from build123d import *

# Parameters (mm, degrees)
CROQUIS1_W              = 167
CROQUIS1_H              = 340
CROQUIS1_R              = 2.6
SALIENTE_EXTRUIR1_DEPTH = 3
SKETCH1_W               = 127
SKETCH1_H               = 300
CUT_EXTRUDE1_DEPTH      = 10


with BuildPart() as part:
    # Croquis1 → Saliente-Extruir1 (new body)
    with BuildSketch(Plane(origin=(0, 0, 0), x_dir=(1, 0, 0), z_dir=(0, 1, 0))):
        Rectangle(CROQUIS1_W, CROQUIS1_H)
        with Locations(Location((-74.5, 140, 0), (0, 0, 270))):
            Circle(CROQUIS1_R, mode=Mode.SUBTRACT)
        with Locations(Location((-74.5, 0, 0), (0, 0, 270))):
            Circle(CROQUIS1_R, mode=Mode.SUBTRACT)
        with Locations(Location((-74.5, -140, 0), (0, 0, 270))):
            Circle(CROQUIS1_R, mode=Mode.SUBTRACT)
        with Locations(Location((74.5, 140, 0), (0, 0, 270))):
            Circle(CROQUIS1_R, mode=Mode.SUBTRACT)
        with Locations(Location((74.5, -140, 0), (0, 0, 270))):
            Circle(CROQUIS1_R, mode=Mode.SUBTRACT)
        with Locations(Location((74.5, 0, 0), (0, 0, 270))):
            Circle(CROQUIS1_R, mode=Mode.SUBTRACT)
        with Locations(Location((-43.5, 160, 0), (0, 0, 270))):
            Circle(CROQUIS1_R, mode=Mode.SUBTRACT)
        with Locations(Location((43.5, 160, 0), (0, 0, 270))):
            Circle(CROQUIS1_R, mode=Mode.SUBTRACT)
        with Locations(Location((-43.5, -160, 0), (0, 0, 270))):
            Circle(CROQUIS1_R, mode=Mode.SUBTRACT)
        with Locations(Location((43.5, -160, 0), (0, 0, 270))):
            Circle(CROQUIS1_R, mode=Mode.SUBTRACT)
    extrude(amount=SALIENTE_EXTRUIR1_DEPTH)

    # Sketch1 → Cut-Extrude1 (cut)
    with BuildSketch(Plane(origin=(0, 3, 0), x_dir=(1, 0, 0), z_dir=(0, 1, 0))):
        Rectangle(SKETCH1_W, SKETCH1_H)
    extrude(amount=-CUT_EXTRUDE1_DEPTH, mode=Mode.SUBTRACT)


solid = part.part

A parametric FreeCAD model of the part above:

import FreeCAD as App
import Part
import Sketcher
from FreeCAD import Vector


def add_polygon(sketch, points):
    """Adds a closed chain of lines whose ends are joined by coincident constraints."""
    first, n = sketch.GeometryCount, len(points)
    for a, b in zip(points, points[1:] + points[:1]):
        sketch.addGeometry(Part.LineSegment(App.Vector(*a, 0), App.Vector(*b, 0)), False)
    for i in range(n):
        sketch.addConstraint(Sketcher.Constraint("Coincident", first + i, 2, first + (i + 1) % n, 1))

doc = App.newDocument("Part")
body = doc.addObject("PartDesign::Body", "Body")

sketch1 = body.newObject("Sketcher::SketchObject", "Sketch")
sketch1.AttachmentSupport = (doc.getObject("XZ_Plane"), [""])
sketch1.MapMode = "FlatFace"
add_polygon(sketch1, [(-83.5, -170), (-83.5, 170), (83.5, 170), (83.5, -170)])
sketch1.addGeometry(Part.Circle(Vector(-74.5, 140, 0), Vector(0, 0, 1), 2.6), False)
sketch1.addGeometry(Part.Circle(Vector(-43.5, 160, 0), Vector(0, 0, 1), 2.6), False)
sketch1.addGeometry(Part.Circle(Vector(43.5, 160, 0), Vector(0, 0, 1), 2.6), False)
sketch1.addGeometry(Part.Circle(Vector(74.5, 140, 0), Vector(0, 0, 1), 2.6), False)
sketch1.addGeometry(Part.Circle(Vector(-74.5, 0, 0), Vector(0, 0, 1), 2.6), False)
sketch1.addGeometry(Part.Circle(Vector(-74.5, -140, 0), Vector(0, 0, 1), 2.6), False)
sketch1.addGeometry(Part.Circle(Vector(-43.5, -160, 0), Vector(0, 0, 1), 2.6), False)
sketch1.addGeometry(Part.Circle(Vector(74.5, 0, 0), Vector(0, 0, 1), 2.6), False)
sketch1.addGeometry(Part.Circle(Vector(43.5, -160, 0), Vector(0, 0, 1), 2.6), False)
sketch1.addGeometry(Part.Circle(Vector(74.5, -140, 0), Vector(0, 0, 1), 2.6), False)
sketch1.addConstraint(Sketcher.Constraint("Vertical", 0))
sketch1.addConstraint(Sketcher.Constraint("Horizontal", 1))
sketch1.addConstraint(Sketcher.Constraint("Vertical", 2))
sketch1.addConstraint(Sketcher.Constraint("Horizontal", 3))
sketch1.addConstraint(Sketcher.Constraint("Equal", 4, 5))
sketch1.addConstraint(Sketcher.Constraint("Equal", 5, 6))
sketch1.addConstraint(Sketcher.Constraint("Equal", 6, 7))
sketch1.addConstraint(Sketcher.Constraint("Equal", 7, 8))
sketch1.addConstraint(Sketcher.Constraint("Equal", 8, 9))
sketch1.addConstraint(Sketcher.Constraint("Equal", 9, 10))
sketch1.addConstraint(Sketcher.Constraint("Equal", 10, 11))
sketch1.addConstraint(Sketcher.Constraint("Equal", 11, 12))
sketch1.addConstraint(Sketcher.Constraint("Equal", 12, 13))
sketch1.addConstraint(Sketcher.Constraint("Symmetric", 7, 3, 9, 3, -1, 1))
sketch1.addConstraint(Sketcher.Constraint("Symmetric", 6, 3, 10, 3, -1, 1))
sketch1.addConstraint(Sketcher.Constraint("Symmetric", 8, 3, 11, 3, -1, 1))
sketch1.addConstraint(Sketcher.Constraint("Symmetric", 5, 3, 12, 3, -1, 1))
sketch1.addConstraint(Sketcher.Constraint("Symmetric", 4, 3, 13, 3, -1, 1))
sketch1.addConstraint(Sketcher.Constraint("Symmetric", 0, 2, 2, 2, -1, 1))
sketch1.addConstraint(Sketcher.Constraint("Symmetric", 5, 3, 6, 3, -2))
sketch1.addConstraint(Sketcher.Constraint("Symmetric", 4, 3, 7, 3, -2))
sketch1.addConstraint(Sketcher.Constraint("PointOnObject", 8, 3, -1))
sketch1.addConstraint(Sketcher.Constraint("Vertical", 4, 3, 8, 3))
sketch1.addConstraint(Sketcher.Constraint("Diameter", 4, 5.2))
sketch1.addConstraint(Sketcher.Constraint("DistanceX", 1, 1, 1, 2, 167.0))
sketch1.addConstraint(Sketcher.Constraint("DistanceY", 0, 1, 0, 2, 340.0))
sketch1.addConstraint(Sketcher.Constraint("DistanceY", -1, 1, 4, 3, 140.0))
sketch1.addConstraint(Sketcher.Constraint("DistanceY", -1, 1, 5, 3, 160.0))
sketch1.addConstraint(Sketcher.Constraint("DistanceX", 4, 3, 5, 3, 31.0))
sketch1.addConstraint(Sketcher.Constraint("DistanceX", 5, 3, 6, 3, 87.0))
pad1 = body.newObject("PartDesign::Pad", "Pad")
pad1.Profile = sketch1
pad1.Length = 3
pad1.Reversed = True

sketch2 = body.newObject("Sketcher::SketchObject", "Sketch001")
sketch2.AttachmentSupport = (doc.getObject("XZ_Plane"), [""])
sketch2.MapMode = "FlatFace"
sketch2.AttachmentOffset = App.Placement(Vector(0, 0, -3), App.Rotation())
add_polygon(sketch2, [(-64, -150), (-64, 150), (64, 150), (64, -150)])
sketch2.addConstraint(Sketcher.Constraint("Vertical", 0))
sketch2.addConstraint(Sketcher.Constraint("Horizontal", 1))
sketch2.addConstraint(Sketcher.Constraint("Vertical", 2))
sketch2.addConstraint(Sketcher.Constraint("Horizontal", 3))
sketch2.addConstraint(Sketcher.Constraint("Symmetric", 0, 2, 2, 2, -1, 1))
sketch2.addConstraint(Sketcher.Constraint("DistanceX", 1, 1, 1, 2, 127.0))
sketch2.addConstraint(Sketcher.Constraint("DistanceY", 0, 1, 0, 2, 300.0))
pocket1 = body.newObject("PartDesign::Pocket", "Pocket")
pocket1.Profile = sketch2
pocket1.Length = 10
pocket1.Reversed = True

doc.recompute()
